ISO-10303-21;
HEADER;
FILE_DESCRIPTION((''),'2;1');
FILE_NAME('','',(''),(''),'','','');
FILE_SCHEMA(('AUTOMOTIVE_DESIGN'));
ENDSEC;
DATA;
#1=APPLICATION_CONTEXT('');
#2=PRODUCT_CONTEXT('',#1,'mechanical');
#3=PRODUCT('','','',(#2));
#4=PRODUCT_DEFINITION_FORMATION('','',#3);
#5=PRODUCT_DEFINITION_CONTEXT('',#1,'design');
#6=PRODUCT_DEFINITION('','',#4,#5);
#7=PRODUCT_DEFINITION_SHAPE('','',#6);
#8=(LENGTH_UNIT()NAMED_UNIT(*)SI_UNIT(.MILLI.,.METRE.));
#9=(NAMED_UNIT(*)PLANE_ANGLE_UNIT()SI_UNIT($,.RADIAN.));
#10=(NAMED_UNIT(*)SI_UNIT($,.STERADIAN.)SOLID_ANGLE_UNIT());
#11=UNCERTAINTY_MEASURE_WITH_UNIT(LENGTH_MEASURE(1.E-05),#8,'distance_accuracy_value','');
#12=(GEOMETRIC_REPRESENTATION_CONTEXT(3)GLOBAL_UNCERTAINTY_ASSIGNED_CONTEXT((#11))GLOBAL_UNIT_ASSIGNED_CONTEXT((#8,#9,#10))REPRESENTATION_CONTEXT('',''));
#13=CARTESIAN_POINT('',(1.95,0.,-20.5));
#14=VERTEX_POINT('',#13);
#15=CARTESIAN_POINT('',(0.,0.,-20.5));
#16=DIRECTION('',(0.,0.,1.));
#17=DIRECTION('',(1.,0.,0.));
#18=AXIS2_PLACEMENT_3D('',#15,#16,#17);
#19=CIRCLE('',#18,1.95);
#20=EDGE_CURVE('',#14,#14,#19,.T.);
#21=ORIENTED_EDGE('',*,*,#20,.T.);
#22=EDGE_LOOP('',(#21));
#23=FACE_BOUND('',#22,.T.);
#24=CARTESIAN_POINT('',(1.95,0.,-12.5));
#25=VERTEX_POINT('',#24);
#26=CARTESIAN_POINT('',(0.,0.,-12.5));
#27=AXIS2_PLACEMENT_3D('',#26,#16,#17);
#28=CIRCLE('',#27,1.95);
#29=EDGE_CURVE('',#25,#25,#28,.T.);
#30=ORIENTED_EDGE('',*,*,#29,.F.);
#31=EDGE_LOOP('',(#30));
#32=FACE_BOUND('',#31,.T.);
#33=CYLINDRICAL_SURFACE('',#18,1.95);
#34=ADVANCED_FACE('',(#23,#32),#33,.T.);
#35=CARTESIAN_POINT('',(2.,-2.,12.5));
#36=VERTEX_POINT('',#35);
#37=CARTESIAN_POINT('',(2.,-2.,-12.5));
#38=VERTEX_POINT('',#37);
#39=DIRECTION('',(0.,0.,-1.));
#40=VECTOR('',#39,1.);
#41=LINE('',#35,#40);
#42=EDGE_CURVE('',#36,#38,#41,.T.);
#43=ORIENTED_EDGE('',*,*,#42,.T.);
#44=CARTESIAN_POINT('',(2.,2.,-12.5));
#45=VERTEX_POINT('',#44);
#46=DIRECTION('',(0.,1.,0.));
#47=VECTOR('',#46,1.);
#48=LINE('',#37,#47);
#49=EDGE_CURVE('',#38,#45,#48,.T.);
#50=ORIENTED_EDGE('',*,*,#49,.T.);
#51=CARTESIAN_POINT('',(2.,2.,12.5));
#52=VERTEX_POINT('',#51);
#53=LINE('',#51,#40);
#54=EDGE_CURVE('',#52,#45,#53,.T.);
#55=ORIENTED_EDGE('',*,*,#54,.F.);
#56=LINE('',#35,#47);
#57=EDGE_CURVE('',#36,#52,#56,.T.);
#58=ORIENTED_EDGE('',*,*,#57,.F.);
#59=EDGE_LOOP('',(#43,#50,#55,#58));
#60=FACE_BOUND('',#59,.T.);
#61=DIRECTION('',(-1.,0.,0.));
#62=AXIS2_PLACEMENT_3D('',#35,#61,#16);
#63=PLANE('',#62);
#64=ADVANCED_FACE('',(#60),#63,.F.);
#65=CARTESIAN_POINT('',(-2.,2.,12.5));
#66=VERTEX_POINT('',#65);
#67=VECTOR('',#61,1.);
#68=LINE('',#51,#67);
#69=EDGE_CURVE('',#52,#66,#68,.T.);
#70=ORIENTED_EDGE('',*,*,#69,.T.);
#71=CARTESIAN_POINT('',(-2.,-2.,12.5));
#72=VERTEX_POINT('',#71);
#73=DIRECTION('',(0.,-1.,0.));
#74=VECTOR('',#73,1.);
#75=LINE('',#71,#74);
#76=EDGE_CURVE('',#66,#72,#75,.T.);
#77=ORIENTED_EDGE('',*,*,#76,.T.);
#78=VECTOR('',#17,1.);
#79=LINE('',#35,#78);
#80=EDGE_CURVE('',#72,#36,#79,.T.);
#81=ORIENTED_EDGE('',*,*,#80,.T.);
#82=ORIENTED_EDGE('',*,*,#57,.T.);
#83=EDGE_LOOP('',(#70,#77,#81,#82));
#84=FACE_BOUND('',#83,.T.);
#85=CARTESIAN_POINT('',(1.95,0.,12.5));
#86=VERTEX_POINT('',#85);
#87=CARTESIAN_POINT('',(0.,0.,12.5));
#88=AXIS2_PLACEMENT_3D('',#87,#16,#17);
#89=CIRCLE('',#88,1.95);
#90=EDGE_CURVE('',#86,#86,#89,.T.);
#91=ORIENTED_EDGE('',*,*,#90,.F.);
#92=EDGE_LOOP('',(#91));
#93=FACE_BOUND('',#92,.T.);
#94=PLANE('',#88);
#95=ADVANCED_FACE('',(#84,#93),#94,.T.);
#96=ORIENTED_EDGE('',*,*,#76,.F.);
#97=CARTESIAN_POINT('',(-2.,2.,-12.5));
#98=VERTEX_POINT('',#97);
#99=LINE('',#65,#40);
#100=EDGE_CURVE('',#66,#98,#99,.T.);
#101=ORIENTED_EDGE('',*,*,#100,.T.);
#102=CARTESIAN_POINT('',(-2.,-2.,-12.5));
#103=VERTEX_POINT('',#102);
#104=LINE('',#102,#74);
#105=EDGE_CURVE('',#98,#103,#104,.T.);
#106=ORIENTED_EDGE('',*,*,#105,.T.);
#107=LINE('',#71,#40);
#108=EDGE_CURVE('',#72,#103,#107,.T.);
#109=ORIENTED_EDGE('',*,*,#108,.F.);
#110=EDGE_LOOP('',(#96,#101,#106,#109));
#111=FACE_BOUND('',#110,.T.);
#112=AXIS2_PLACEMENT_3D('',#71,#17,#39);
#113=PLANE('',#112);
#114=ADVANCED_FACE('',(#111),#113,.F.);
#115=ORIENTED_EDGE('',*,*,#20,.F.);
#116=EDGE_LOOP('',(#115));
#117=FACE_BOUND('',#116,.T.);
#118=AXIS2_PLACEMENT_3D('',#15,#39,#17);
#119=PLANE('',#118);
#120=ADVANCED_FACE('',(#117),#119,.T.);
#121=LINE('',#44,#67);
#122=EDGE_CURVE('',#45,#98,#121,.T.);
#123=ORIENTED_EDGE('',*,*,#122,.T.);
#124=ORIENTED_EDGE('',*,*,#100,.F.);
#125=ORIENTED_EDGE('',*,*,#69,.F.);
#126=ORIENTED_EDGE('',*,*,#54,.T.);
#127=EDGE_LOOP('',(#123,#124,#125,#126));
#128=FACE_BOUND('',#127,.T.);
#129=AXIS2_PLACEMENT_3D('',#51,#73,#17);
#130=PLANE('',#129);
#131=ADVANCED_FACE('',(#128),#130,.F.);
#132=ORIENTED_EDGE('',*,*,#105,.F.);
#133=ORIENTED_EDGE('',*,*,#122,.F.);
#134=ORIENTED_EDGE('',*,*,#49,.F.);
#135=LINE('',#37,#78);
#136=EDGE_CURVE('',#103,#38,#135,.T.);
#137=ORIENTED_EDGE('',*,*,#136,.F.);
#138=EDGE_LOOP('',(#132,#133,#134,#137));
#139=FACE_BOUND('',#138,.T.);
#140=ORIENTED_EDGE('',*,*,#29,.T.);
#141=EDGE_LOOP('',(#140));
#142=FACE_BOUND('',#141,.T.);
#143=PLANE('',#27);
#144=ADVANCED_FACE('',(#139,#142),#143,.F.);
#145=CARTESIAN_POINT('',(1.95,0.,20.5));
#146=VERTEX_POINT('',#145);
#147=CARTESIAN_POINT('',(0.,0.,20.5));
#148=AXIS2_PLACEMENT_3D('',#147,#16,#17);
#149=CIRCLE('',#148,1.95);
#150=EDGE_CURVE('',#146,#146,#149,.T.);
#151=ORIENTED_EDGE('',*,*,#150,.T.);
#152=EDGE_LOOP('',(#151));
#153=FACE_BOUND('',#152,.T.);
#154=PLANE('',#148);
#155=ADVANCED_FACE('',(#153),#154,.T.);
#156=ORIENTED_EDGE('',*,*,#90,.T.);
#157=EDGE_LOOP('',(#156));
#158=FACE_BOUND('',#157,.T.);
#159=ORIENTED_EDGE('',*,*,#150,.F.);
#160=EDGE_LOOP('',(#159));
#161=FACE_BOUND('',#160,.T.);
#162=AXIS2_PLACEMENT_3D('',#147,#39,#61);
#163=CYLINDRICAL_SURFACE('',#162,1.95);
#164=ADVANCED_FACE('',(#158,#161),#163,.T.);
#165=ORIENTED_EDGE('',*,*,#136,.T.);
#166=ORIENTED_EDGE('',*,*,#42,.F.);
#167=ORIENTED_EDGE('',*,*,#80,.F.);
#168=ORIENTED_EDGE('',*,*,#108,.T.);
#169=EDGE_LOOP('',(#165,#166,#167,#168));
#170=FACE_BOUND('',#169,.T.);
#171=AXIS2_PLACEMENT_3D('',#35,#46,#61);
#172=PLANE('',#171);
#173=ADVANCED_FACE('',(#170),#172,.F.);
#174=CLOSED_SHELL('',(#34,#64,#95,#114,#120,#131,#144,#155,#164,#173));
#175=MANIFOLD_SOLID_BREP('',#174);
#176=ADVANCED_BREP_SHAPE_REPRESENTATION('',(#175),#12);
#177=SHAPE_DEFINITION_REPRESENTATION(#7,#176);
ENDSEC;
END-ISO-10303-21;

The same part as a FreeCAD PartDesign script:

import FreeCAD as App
import Part
import Sketcher
from FreeCAD import Vector


def add_polygon(sketch, points):
    """Adds a closed chain of lines whose ends are joined by coincident constraints."""
    first, n = sketch.GeometryCount, len(points)
    for a, b in zip(points, points[1:] + points[:1]):
        sketch.addGeometry(Part.LineSegment(App.Vector(*a, 0), App.Vector(*b, 0)), False)
    for i in range(n):
        sketch.addConstraint(Sketcher.Constraint("Coincident", first + i, 2, first + (i + 1) % n, 1))

doc = App.newDocument("Part")
body = doc.addObject("PartDesign::Body", "Body")

sketch1 = body.newObject("Sketcher::SketchObject", "Sketch")
sketch1.AttachmentSupport = (doc.getObject("XY_Plane"), [""])
sketch1.MapMode = "FlatFace"
add_polygon(sketch1, [(-2, 2), (-2, -2), (2, -2), (2, 2)])
sketch1.addConstraint([
    Sketcher.Constraint("Vertical", 0),
    Sketcher.Constraint("Horizontal", 1),
    Sketcher.Constraint("Vertical", 2),
    Sketcher.Constraint("Horizontal", 3),
    Sketcher.Constraint("Symmetric", 0, 2, 2, 2, -1, 1),
    Sketcher.Constraint("Equal", 3, 0),
    Sketcher.Constraint("DistanceX", 1, 1, 1, 2, 4.0),
])
pad1 = body.newObject("PartDesign::Pad", "Pad")
pad1.Profile = sketch1
pad1.Length = 25
pad1.Midplane = True

sketch2 = body.newObject("Sketcher::SketchObject", "Sketch001")
sketch2.AttachmentSupport = (doc.getObject("XY_Plane"), [""])
sketch2.MapMode = "FlatFace"
sketch2.AttachmentOffset = App.Placement(Vector(0, 0, 12.5), App.Rotation())
sketch2.addGeometry(Part.Circle(Vector(0, 0, 0), Vector(0, 0, 1), 1.9), False)
sketch2.addConstraint([
    Sketcher.Constraint("Coincident", 0, 3, -1, 1),
    Sketcher.Constraint("Diameter", 0, 3.9),
])
pad2 = body.newObject("PartDesign::Pad", "Pad001")
pad2.Profile = sketch2
pad2.Length = 8
doc.recompute()

mirrored = body.newObject("PartDesign::Mirrored", "Mirrored")
mirrored.Originals = [pad2]
mirrored.MirrorPlane = (doc.getObject("XY_Plane"), [""])
body.Tip = mirrored

doc.recompute()
